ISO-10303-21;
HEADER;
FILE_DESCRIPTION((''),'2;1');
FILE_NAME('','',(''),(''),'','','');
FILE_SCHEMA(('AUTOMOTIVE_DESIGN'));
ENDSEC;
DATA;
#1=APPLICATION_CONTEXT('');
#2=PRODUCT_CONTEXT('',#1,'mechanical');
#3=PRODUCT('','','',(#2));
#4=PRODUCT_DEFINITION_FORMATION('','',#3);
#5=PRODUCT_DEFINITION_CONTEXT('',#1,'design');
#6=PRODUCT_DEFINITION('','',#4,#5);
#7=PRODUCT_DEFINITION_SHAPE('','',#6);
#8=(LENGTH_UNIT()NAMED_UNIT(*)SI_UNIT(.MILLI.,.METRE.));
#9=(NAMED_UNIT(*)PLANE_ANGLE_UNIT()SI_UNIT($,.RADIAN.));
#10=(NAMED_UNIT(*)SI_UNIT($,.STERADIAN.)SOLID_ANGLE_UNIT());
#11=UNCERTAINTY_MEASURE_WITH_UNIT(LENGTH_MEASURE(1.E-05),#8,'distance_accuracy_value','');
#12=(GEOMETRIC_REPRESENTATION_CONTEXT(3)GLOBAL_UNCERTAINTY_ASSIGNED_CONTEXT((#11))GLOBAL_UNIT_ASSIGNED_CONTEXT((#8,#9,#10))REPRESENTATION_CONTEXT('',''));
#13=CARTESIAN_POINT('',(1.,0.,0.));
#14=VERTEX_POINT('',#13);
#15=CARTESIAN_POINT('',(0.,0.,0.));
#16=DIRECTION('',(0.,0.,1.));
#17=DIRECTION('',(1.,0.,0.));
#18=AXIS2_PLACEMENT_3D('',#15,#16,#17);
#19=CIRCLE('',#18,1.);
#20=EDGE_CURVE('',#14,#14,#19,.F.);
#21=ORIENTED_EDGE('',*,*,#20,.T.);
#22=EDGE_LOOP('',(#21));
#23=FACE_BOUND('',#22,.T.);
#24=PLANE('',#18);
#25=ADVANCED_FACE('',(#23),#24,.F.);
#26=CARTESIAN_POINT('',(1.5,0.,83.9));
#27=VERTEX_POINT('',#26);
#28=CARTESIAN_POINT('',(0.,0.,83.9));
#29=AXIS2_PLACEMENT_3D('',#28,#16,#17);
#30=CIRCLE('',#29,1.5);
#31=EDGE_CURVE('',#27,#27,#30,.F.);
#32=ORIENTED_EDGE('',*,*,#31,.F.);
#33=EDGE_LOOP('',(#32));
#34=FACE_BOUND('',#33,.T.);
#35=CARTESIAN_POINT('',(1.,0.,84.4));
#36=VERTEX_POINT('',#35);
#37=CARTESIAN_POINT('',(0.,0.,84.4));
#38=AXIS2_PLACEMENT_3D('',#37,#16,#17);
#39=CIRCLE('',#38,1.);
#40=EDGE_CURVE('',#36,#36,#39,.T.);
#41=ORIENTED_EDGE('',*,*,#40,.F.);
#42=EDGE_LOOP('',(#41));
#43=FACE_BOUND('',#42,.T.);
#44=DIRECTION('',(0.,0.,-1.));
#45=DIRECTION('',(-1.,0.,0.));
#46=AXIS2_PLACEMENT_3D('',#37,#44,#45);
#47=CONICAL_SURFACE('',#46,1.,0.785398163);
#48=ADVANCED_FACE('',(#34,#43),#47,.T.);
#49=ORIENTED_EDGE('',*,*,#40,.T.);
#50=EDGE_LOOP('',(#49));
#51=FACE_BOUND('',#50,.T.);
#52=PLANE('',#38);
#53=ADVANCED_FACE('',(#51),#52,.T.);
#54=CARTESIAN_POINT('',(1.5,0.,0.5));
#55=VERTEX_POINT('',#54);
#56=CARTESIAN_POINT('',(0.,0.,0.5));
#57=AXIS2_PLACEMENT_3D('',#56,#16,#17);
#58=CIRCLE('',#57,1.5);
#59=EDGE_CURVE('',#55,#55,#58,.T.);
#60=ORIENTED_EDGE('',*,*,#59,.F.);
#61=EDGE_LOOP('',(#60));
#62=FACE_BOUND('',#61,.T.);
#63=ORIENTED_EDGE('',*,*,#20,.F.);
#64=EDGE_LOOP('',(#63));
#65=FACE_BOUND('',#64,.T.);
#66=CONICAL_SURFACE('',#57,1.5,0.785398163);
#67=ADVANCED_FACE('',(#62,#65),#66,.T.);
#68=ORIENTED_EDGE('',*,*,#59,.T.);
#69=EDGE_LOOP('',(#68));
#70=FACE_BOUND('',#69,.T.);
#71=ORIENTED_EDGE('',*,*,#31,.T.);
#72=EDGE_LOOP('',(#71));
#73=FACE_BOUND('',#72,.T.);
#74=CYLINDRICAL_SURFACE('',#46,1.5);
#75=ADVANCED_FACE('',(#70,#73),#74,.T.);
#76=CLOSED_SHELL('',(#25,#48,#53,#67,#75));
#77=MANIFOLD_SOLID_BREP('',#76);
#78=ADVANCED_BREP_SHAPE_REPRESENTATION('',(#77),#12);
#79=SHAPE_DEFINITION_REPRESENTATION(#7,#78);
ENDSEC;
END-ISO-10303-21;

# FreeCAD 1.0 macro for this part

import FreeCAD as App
import Part
import Sketcher
from FreeCAD import Vector
Q = App.Units.Quantity


def edges_at(feature, points):
    """Names of the edges that pass closest to the given points."""
    edges = feature.Shape.Edges
    near = lambda p: min(range(len(edges)), key=lambda i: edges[i].distToShape(Part.Vertex(*p))[0])
    return sorted({f"Edge{near(p) + 1}" for p in points})

doc = App.newDocument("Part")
body = doc.addObject("PartDesign::Body", "Body")

sketch1 = doc.addObject("Sketcher::SketchObject", "Sketch")
body.addObject(sketch1)
sketch1.AttachmentSupport = (doc.XY_Plane, [""])
sketch1.MapMode = "FlatFace"
sketch1.addGeometry(Part.Circle(Vector(0, 0, 0), Vector(0, 0, 1), 1.5), False)
sketch1.addConstraint([
    Sketcher.Constraint("Coincident", 0, 3, -1, 1),
    Sketcher.Constraint("Diameter", 0, Q("3 mm")),
])
pad1 = doc.addObject("PartDesign::Pad", "Pad")
body.addObject(pad1)
pad1.Profile = sketch1
pad1.Length = 84.4
doc.recompute()

chamfer = doc.addObject("PartDesign::Chamfer", "Chamfer")
body.addObject(chamfer)
chamfer.Base = (pad1, edges_at(pad1, [(-1.5, 0, 0), (-1.5, 0, 84.4)]))
chamfer.Size = 0.5

doc.recompute()
